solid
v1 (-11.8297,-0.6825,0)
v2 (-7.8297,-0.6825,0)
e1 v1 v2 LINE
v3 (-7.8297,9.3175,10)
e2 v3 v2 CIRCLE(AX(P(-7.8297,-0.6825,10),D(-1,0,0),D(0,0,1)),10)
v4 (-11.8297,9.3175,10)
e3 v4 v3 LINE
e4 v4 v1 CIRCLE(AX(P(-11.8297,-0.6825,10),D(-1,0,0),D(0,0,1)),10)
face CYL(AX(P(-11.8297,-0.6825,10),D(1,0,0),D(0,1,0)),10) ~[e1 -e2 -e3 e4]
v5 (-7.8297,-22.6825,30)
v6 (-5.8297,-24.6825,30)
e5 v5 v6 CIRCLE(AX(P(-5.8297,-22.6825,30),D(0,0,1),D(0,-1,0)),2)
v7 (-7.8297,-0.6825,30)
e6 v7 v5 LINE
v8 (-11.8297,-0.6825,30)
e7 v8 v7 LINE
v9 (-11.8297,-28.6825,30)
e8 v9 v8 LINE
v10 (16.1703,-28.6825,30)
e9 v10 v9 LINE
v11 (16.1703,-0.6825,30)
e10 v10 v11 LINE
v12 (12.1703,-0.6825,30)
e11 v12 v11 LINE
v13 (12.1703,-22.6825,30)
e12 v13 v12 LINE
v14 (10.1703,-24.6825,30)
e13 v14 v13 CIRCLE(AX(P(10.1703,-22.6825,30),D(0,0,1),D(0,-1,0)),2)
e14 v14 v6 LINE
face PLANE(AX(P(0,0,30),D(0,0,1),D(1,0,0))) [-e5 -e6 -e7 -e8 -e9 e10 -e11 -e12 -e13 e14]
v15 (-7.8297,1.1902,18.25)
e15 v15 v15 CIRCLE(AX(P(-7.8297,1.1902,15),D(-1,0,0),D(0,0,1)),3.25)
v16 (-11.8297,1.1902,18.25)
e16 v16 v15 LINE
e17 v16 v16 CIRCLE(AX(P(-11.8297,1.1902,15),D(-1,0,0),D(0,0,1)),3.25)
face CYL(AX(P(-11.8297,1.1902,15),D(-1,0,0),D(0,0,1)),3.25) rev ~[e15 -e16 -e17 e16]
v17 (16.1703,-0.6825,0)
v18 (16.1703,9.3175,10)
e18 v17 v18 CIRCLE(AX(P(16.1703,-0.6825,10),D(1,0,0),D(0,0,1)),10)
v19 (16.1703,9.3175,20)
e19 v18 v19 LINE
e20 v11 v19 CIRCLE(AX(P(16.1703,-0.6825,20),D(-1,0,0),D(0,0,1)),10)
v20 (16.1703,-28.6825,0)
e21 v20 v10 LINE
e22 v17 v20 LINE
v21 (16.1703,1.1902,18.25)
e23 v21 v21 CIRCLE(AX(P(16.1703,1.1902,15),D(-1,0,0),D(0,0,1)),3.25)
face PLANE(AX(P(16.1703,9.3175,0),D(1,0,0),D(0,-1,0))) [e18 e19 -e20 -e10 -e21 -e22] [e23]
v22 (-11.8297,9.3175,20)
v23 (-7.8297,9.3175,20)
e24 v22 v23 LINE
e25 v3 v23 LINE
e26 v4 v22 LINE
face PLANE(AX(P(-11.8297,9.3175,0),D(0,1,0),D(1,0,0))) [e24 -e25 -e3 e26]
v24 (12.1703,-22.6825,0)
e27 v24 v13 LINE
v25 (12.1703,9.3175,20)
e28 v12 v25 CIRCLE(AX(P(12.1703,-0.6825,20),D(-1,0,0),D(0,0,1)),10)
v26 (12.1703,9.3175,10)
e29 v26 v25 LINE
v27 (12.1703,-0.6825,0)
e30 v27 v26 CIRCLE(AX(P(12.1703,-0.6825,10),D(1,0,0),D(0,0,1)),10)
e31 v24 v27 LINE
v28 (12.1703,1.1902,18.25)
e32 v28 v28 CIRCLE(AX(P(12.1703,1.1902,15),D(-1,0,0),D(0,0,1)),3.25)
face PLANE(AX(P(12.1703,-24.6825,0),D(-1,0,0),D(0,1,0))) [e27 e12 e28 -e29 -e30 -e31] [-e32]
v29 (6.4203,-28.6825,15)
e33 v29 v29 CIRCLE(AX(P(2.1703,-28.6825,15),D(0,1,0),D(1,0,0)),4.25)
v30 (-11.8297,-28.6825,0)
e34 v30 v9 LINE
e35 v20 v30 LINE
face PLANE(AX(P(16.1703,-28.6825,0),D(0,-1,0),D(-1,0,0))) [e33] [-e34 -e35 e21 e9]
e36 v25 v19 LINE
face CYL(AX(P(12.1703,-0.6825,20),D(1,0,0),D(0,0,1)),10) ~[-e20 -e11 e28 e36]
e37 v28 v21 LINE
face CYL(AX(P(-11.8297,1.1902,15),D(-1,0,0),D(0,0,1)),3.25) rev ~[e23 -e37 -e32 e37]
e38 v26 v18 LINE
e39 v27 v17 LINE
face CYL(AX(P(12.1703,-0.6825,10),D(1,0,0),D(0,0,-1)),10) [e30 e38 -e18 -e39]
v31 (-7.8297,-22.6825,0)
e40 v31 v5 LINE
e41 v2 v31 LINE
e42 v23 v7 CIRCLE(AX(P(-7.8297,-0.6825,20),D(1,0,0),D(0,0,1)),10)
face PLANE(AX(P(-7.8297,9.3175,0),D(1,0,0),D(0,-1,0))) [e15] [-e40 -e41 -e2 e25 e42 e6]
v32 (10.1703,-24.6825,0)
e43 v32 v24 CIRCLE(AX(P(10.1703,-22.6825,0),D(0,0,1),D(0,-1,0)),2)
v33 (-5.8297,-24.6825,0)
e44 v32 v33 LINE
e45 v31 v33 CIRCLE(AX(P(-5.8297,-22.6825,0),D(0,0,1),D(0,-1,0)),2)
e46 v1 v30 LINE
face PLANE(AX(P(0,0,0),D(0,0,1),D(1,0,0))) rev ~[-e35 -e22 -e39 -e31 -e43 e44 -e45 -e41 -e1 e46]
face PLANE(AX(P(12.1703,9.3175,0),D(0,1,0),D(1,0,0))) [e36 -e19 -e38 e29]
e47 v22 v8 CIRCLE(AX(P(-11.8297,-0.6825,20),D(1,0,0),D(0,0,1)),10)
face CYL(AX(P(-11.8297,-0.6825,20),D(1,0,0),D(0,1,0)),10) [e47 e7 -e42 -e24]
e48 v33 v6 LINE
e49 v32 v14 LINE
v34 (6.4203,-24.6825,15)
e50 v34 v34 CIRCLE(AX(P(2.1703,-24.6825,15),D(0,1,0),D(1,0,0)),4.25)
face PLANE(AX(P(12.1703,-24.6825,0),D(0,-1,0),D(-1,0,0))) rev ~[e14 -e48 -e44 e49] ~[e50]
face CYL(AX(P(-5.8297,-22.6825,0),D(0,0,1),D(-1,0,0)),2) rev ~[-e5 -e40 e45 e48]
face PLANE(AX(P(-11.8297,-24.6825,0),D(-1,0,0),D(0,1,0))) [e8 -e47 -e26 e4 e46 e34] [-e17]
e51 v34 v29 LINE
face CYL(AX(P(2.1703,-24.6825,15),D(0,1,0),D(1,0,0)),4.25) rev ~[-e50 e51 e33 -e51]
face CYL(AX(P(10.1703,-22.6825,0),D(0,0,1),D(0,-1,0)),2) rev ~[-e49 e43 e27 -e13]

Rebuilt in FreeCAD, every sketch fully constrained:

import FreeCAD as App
import Part
import Sketcher


def edges_at(feature, points):
    """Names of the edges that pass closest to the given points."""
    edges = feature.Shape.Edges
    near = lambda p: min(range(len(edges)), key=lambda i: edges[i].distToShape(Part.Vertex(*p))[0])
    return sorted({f"Edge{near(p) + 1}" for p in points})


def add_polygon(sketch, points):
    """Adds a closed chain of lines whose ends are joined by coincident constraints."""
    first, n = sketch.GeometryCount, len(points)
    for a, b in zip(points, points[1:] + points[:1]):
        sketch.addGeometry(Part.LineSegment(App.Vector(*a, 0), App.Vector(*b, 0)), False)
    for i in range(n):
        sketch.addConstraint(Sketcher.Constraint("Coincident", first + i, 2, first + (i + 1) % n, 1))

doc = App.newDocument("Part")
body = doc.addObject("PartDesign::Body", "Body")

# Sketch on XY plane
sketch1 = body.newObject("Sketcher::SketchObject", "Sketch")
sketch1.AttachmentSupport = (doc.getObject("XY_Plane"), [""])
sketch1.MapMode = "FlatFace"
add_polygon(sketch1, [(-7.8, 9.3), (-11.8, 9.3), (-11.8, -28.7), (16.2, -28.7), (16.2, 9.3), (12.2, 9.3), (12.2, -24.7), (-7.8, -24.7)])  # lines 0-7
sketch1.addConstraint([
    Sketcher.Constraint("Horizontal", 0),
    Sketcher.Constraint("Vertical", 1),
    Sketcher.Constraint("Horizontal", 2),
    Sketcher.Constraint("Vertical", 3),
    Sketcher.Constraint("Horizontal", 4),
    Sketcher.Constraint("Vertical", 5),
    Sketcher.Constraint("Horizontal", 6),
    Sketcher.Constraint("Vertical", 7),
    Sketcher.Constraint("Horizontal", 0, 2, 3, 2),
    Sketcher.Constraint("Equal", 0, 4),
    Sketcher.Constraint("DistanceX", 0, 2, 0, 1, 4.0),
    Sketcher.Constraint("DistanceX", 2, 1, 2, 2, 28.0),
    Sketcher.Constraint("DistanceY", 1, 2, 1, 1, 38.0),
    Sketcher.Constraint("DistanceY", 5, 2, 5, 1, 34.0),
    Sketcher.Constraint("DistanceY", -1, 1, 0, 2, 9.3175),
    Sketcher.Constraint("DistanceX", 0, 2, -1, 1, 11.8297),
])
pad1 = body.newObject("PartDesign::Pad", "Pad")
pad1.Profile = sketch1
pad1.Length = 30

# Sketch on YZ plane
sketch2 = body.newObject("Sketcher::SketchObject", "Sketch001")
sketch2.AttachmentSupport = (doc.getObject("YZ_Plane"), [""])
sketch2.MapMode = "FlatFace"
sketch2.AttachmentOffset = App.Placement(App.Vector(0, 0, -11.8297), App.Rotation())
sketch2.addGeometry(Part.Circle(App.Vector(1.2, 15, 0), App.Vector(0, 0, 1), 3.2), False)
sketch2.addConstraint([
    Sketcher.Constraint("Diameter", 0, 6.5),
    Sketcher.Constraint("DistanceY", -1, 1, 0, 3, 15.0),
    Sketcher.Constraint("DistanceX", -1, 1, 0, 3, 1.1902),
])
pocket1 = body.newObject("PartDesign::Pocket", "Pocket")
pocket1.Profile = sketch2
pocket1.Type = "ThroughAll"
pocket1.Reversed = True
doc.recompute()

fillet = body.newObject("PartDesign::Fillet", "Fillet")
fillet.Base = (pocket1, edges_at(pocket1, [
    (-9.83, 9.318, 0),
    (14.17, 9.318, 0),
    (-9.83, 9.318, 30),
    (14.17, 9.318, 30),
]))
fillet.Radius = 10

# Sketch on XZ plane
sketch3 = body.newObject("Sketcher::SketchObject", "Sketch002")
sketch3.AttachmentSupport = (doc.getObject("XZ_Plane"), [""])
sketch3.MapMode = "FlatFace"
sketch3.AttachmentOffset = App.Placement(App.Vector(0, 0, 24.6825), App.Rotation())
sketch3.addGeometry(Part.Circle(App.Vector(2.2, 15, 0), App.Vector(0, 0, 1), 4.2), False)
sketch3.addConstraint([
    Sketcher.Constraint("Diameter", 0, 8.5),
    Sketcher.Constraint("DistanceY", -1, 1, 0, 3, 15.0),
    Sketcher.Constraint("DistanceX", -1, 1, 0, 3, 2.1703),
])
pocket2 = body.newObject("PartDesign::Pocket", "Pocket001")
pocket2.Profile = sketch3
pocket2.Type = "ThroughAll"
pocket2.Reversed = True
doc.recompute()

fillet2 = body.newObject("PartDesign::Fillet", "Fillet001")
fillet2.Base = (pocket2, edges_at(pocket2, [(-7.83, -24.683, 15), (12.17, -24.683, 15)]))
fillet2.Radius = 2

doc.recompute()
